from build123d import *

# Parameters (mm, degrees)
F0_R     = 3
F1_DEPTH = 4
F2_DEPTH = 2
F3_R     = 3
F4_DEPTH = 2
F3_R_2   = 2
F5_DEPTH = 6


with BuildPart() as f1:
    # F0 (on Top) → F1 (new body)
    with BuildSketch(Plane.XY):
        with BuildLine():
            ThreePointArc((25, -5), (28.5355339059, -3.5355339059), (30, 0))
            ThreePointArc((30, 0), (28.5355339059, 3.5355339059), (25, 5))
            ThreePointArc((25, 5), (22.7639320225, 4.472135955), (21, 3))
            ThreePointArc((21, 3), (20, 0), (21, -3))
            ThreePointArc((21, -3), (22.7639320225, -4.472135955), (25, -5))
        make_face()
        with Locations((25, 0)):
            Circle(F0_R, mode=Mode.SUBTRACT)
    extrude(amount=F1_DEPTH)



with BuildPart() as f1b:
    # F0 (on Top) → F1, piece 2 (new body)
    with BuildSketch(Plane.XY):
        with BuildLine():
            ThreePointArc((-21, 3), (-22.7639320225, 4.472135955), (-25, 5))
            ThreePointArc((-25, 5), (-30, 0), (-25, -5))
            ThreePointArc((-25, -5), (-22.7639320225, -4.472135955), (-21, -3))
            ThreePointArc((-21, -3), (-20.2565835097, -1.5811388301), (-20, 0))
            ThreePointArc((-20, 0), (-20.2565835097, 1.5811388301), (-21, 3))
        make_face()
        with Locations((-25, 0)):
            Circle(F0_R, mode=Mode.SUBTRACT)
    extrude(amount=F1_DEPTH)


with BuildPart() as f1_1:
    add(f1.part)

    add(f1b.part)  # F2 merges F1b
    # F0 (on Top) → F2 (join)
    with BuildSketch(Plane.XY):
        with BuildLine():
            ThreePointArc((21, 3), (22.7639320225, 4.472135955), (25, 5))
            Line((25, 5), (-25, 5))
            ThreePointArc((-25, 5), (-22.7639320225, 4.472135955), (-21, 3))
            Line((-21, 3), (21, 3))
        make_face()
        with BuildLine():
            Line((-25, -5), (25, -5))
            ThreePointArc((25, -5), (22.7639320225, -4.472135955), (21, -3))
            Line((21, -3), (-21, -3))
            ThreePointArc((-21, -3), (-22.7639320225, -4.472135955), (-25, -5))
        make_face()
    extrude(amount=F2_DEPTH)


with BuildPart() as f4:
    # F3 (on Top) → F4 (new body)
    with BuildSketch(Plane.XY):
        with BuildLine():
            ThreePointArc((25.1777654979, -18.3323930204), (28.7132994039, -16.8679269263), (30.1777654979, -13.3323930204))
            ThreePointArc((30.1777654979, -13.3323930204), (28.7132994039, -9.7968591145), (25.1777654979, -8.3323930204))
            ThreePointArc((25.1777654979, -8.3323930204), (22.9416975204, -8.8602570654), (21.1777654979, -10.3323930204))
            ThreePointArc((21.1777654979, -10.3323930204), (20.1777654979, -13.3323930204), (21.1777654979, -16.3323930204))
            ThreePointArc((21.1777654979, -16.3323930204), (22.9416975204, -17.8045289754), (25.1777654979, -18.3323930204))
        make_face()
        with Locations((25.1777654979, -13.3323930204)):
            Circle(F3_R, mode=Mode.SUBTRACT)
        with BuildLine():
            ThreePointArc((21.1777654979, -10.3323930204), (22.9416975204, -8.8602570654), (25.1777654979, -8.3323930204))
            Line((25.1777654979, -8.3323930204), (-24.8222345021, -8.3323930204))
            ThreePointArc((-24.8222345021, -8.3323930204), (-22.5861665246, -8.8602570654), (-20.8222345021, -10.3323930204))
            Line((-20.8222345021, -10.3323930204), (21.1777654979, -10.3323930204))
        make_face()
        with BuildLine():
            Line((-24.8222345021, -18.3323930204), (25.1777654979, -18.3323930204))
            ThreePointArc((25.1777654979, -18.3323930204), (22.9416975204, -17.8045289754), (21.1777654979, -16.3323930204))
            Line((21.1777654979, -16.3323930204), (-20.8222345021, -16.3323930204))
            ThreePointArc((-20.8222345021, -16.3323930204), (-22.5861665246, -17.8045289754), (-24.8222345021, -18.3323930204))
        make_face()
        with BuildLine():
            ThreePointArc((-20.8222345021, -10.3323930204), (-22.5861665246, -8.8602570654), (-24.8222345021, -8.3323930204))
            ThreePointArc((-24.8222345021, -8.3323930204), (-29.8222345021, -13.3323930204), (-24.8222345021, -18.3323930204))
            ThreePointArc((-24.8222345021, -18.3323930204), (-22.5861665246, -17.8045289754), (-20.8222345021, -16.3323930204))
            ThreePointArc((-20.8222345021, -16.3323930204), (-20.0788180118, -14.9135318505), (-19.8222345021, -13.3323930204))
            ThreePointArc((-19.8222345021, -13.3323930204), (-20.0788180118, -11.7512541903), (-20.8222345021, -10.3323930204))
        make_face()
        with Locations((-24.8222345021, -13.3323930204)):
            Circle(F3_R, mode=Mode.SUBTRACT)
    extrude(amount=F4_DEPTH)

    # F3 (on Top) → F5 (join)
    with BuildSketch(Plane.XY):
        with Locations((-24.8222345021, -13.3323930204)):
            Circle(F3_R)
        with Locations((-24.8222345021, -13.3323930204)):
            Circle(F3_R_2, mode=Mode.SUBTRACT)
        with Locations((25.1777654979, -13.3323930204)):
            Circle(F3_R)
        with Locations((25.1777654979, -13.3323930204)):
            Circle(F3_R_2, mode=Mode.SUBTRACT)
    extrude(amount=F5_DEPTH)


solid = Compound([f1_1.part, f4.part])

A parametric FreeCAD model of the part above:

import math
import FreeCAD as App
import Part
import Sketcher

V = App.Vector
Q = App.Units.Quantity

doc = App.newDocument("Part")
body = doc.addObject("PartDesign::Body", "Body")

# Sketch on XY plane
sketch1 = doc.addObject("Sketcher::SketchObject", "Sketch")
body.addObject(sketch1)
sketch1.AttachmentSupport = (doc.XY_Plane, [""])
sketch1.MapMode = "FlatFace"
sketch1.addGeometry(Part.ArcOfCircle(Part.Circle(V(25, 0, 0), V(0, 0, 1), 5), math.radians(-90), math.radians(0)), False)
sketch1.addGeometry(Part.ArcOfCircle(Part.Circle(V(25, 0, 0), V(0, 0, 1), 5), math.radians(0), math.radians(90)), False)
sketch1.addGeometry(Part.ArcOfCircle(Part.Circle(V(25, 0, 0), V(0, 0, 1), 5), math.radians(90), math.radians(217)), False)
sketch1.addGeometry(Part.ArcOfCircle(Part.Circle(V(25, 0, 0), V(0, 0, 1), 5), math.radians(-143), math.radians(-90)), False)
sketch1.addGeometry(Part.Circle(V(25, 0, 0), V(0, 0, 1), 3), False)
sketch1.addConstraint(Sketcher.Constraint("Tangent", 0, 2, 1, 1))
sketch1.addConstraint(Sketcher.Constraint("Tangent", 1, 2, 2, 1))
sketch1.addConstraint(Sketcher.Constraint("Tangent", 2, 2, 3, 1))
sketch1.addConstraint(Sketcher.Constraint("Tangent", 3, 2, 0, 1))
sketch1.addConstraint(Sketcher.Constraint("Coincident", 4, 3, 0, 3))
sketch1.addConstraint(Sketcher.Constraint("Equal", 0, 1))
sketch1.addConstraint(Sketcher.Constraint("Symmetric", 1, 2, 3, 2, -1))
sketch1.addConstraint(Sketcher.Constraint("PointOnObject", 0, 2, -1))
sketch1.addConstraint(Sketcher.Constraint("Vertical", 4, 3, 1, 2))
sketch1.addConstraint(Sketcher.Constraint("Diameter", 4, Q("6 mm")))
sketch1.addConstraint(Sketcher.Constraint("Radius", 0, Q("5 mm")))
sketch1.addConstraint(Sketcher.Constraint("DistanceX", -1, 1, 0, 3, Q("25 mm")))
sketch1.addConstraint(Sketcher.Constraint("DistanceX", -1, 1, 2, 2, Q("21 mm")))
pad1 = doc.addObject("PartDesign::Pad", "Pad")
body.addObject(pad1)
pad1.Profile = sketch1
pad1.Length = 4
body2 = doc.addObject("PartDesign::Body", "Body001")

# Sketch on XY plane
sketch2 = doc.addObject("Sketcher::SketchObject", "Sketch001")
body2.addObject(sketch2)
sketch2.AttachmentSupport = (doc.getObject("XY_Plane001"), [""])
sketch2.MapMode = "FlatFace"
sketch2.addGeometry(Part.ArcOfCircle(Part.Circle(V(-25, 0, 0), V(0, 0, 1), 5), math.radians(37), math.radians(323)), False)
sketch2.addGeometry(Part.ArcOfCircle(Part.Circle(V(-25, 0, 0), V(0, 0, 1), 5), math.radians(-37), math.radians(0)), False)
sketch2.addGeometry(Part.ArcOfCircle(Part.Circle(V(-25, 0, 0), V(0, 0, 1), 5), math.radians(0), math.radians(37)), False)
sketch2.addGeometry(Part.Circle(V(-25, 0, 0), V(0, 0, 1), 3), False)
sketch2.addConstraint(Sketcher.Constraint("Tangent", 0, 2, 1, 1))
sketch2.addConstraint(Sketcher.Constraint("Tangent", 1, 2, 2, 1))
sketch2.addConstraint(Sketcher.Constraint("Tangent", 2, 2, 0, 1))
sketch2.addConstraint(Sketcher.Constraint("Coincident", 3, 3, 0, 3))
sketch2.addConstraint(Sketcher.Constraint("Symmetric", 0, 2, 2, 2, -1))
sketch2.addConstraint(Sketcher.Constraint("PointOnObject", 1, 2, -1))
sketch2.addConstraint(Sketcher.Constraint("Diameter", 3, Q("6 mm")))
sketch2.addConstraint(Sketcher.Constraint("Radius", 0, Q("5 mm")))
sketch2.addConstraint(Sketcher.Constraint("DistanceX", 0, 3, -1, 1, Q("25 mm")))
sketch2.addConstraint(Sketcher.Constraint("DistanceX", 0, 2, -1, 1, Q("21 mm")))
pad2 = doc.addObject("PartDesign::Pad", "Pad001")
body2.addObject(pad2)
pad2.Profile = sketch2
pad2.Length = 4
body.AllowCompound = True
doc.recompute()

boolean = doc.addObject("PartDesign::Boolean", "Boolean")
body.addObject(boolean)
boolean.Type = "Fuse"
boolean.addObjects([body2])

# Sketch on XY plane
sketch3 = doc.addObject("Sketcher::SketchObject", "Sketch002")
body.addObject(sketch3)
sketch3.AttachmentSupport = (doc.XY_Plane, [""])
sketch3.MapMode = "FlatFace"
sketch3.addGeometry(Part.ArcOfCircle(Part.Circle(V(25, 0, 0), V(0, 0, 1), 5), math.radians(90), math.radians(143)), False)
sketch3.addGeometry(Part.LineSegment(V(25, 5, 0), V(-25, 5, 0)), False)
sketch3.addGeometry(Part.ArcOfCircle(Part.Circle(V(-25, 0, 0), V(0, 0, 1), 5), math.radians(37), math.radians(90)), False)
sketch3.addGeometry(Part.LineSegment(V(-21, 3, 0), V(21, 3, 0)), False)
sketch3.addGeometry(Part.LineSegment(V(-25, -5, 0), V(25, -5, 0)), False)
sketch3.addGeometry(Part.ArcOfCircle(Part.Circle(V(25, 0, 0), V(0, 0, 1), 5), math.radians(-143), math.radians(-90)), False)
sketch3.addGeometry(Part.LineSegment(V(21, -3, 0), V(-21, -3, 0)), False)
sketch3.addGeometry(Part.ArcOfCircle(Part.Circle(V(-25, 0, 0), V(0, 0, 1), 5), math.radians(-90), math.radians(-37)), False)
sketch3.addConstraint(Sketcher.Constraint("Tangent", 0, 1, 1, 1))
sketch3.addConstraint(Sketcher.Constraint("Tangent", 1, 2, 2, 2))
sketch3.addConstraint(Sketcher.Constraint("Coincident", 2, 1, 3, 1))
sketch3.addConstraint(Sketcher.Constraint("Coincident", 3, 2, 0, 2))
sketch3.addConstraint(Sketcher.Constraint("Tangent", 4, 2, 5, 2))
sketch3.addConstraint(Sketcher.Constraint("Coincident", 5, 1, 6, 1))
sketch3.addConstraint(Sketcher.Constraint("Coincident", 6, 2, 7, 2))
sketch3.addConstraint(Sketcher.Constraint("Tangent", 7, 1, 4, 1))
sketch3.addConstraint(Sketcher.Constraint("Horizontal", 1))
sketch3.addConstraint(Sketcher.Constraint("Horizontal", 3))
sketch3.addConstraint(Sketcher.Constraint("Horizontal", 4))
sketch3.addConstraint(Sketcher.Constraint("Horizontal", 6))
sketch3.addConstraint(Sketcher.Constraint("Coincident", 5, 3, 0, 3))
sketch3.addConstraint(Sketcher.Constraint("Coincident", 7, 3, 2, 3))
sketch3.addConstraint(Sketcher.Constraint("Equal", 0, 2))
sketch3.addConstraint(Sketcher.Constraint("Equal", 2, 5))
sketch3.addConstraint(Sketcher.Constraint("Symmetric", 0, 3, 2, 3, -1, 1))
sketch3.addConstraint(Sketcher.Constraint("Vertical", 3, 2, 5, 1))
sketch3.addConstraint(Sketcher.Constraint("Radius", 0, Q("5 mm")))
sketch3.addConstraint(Sketcher.Constraint("DistanceX", 1, 2, 1, 1, Q("50 mm")))
sketch3.addConstraint(Sketcher.Constraint("DistanceX", 3, 1, 3, 2, Q("42 mm")))
pad3 = doc.addObject("PartDesign::Pad", "Pad002")
body.addObject(pad3)
pad3.Profile = sketch3
pad3.Length = 2
body3 = doc.addObject("PartDesign::Body", "Body002")

# Sketch on XY plane
sketch4 = doc.addObject("Sketcher::SketchObject", "Sketch003")
body3.addObject(sketch4)
sketch4.AttachmentSupport = (doc.getObject("XY_Plane002"), [""])
sketch4.MapMode = "FlatFace"
sketch4.addGeometry(Part.ArcOfCircle(Part.Circle(V(25.2, -13.3, 0), V(0, 0, 1), 5), math.radians(-90), math.radians(0)), False)
sketch4.addGeometry(Part.ArcOfCircle(Part.Circle(V(25.2, -13.3, 0), V(0, 0, 1), 5), math.radians(0), math.radians(90)), False)
sketch4.addGeometry(Part.LineSegment(V(25.2, -8.3, 0), V(-24.8, -8.3, 0)), False)
sketch4.addGeometry(Part.ArcOfCircle(Part.Circle(V(-24.8, -13.3, 0), V(0, 0, 1), 5), math.radians(90), math.radians(270)), False)
sketch4.addGeometry(Part.LineSegment(V(-24.8, -18.3, 0), V(25.2, -18.3, 0)), False)
sketch4.addGeometry(Part.Circle(V(-24.8, -13.3, 0), V(0, 0, 1), 3), False)
sketch4.addGeometry(Part.LineSegment(V(-20.8, -10.3, 0), V(21.2, -10.3, 0)), False)
sketch4.addGeometry(Part.ArcOfCircle(Part.Circle(V(25.2, -13.3, 0), V(0, 0, 1), 5), math.radians(143), math.radians(217)), False)
sketch4.addGeometry(Part.LineSegment(V(21.2, -16.3, 0), V(-20.8, -16.3, 0)), False)
sketch4.addGeometry(Part.ArcOfCircle(Part.Circle(V(-24.8, -13.3, 0), V(0, 0, 1), 5), math.radians(-37), math.radians(0)), False)
sketch4.addGeometry(Part.ArcOfCircle(Part.Circle(V(-24.8, -13.3, 0), V(0, 0, 1), 5), math.radians(0), math.radians(37)), False)
sketch4.addGeometry(Part.Circle(V(25.2, -13.3, 0), V(0, 0, 1), 3), False)
sketch4.addConstraint(Sketcher.Constraint("Tangent", 0, 2, 1, 1))
sketch4.addConstraint(Sketcher.Constraint("Tangent", 1, 2, 2, 1))
sketch4.addConstraint(Sketcher.Constraint("Tangent", 2, 2, 3, 1))
sketch4.addConstraint(Sketcher.Constraint("Tangent", 3, 2, 4, 1))
sketch4.addConstraint(Sketcher.Constraint("Tangent", 4, 2, 0, 1))
sketch4.addConstraint(Sketcher.Constraint("Coincident", 6, 2, 7, 1))
sketch4.addConstraint(Sketcher.Constraint("Coincident", 7, 2, 8, 1))
sketch4.addConstraint(Sketcher.Constraint("Coincident", 8, 2, 9, 1))
sketch4.addConstraint(Sketcher.Constraint("Tangent", 9, 2, 10, 1))
sketch4.addConstraint(Sketcher.Constraint("Coincident", 10, 2, 6, 1))
sketch4.addConstraint(Sketcher.Constraint("Horizontal", 2))
sketch4.addConstraint(Sketcher.Constraint("Horizontal", 4))
sketch4.addConstraint(Sketcher.Constraint("Horizontal", 6))
sketch4.addConstraint(Sketcher.Constraint("Horizontal", 8))
sketch4.addConstraint(Sketcher.Constraint("Coincident", 5, 3, 3, 3))
sketch4.addConstraint(Sketcher.Constraint("Coincident", 7, 3, 0, 3))
sketch4.addConstraint(Sketcher.Constraint("Coincident", 9, 3, 3, 3))
sketch4.addConstraint(Sketcher.Constraint("Coincident", 11, 3, 0, 3))
sketch4.addConstraint(Sketcher.Constraint("Equal", 0, 1))
sketch4.addConstraint(Sketcher.Constraint("Equal", 3, 7))
sketch4.addConstraint(Sketcher.Constraint("Equal", 7, 9))
sketch4.addConstraint(Sketcher.Constraint("Equal", 9, 10))
sketch4.addConstraint(Sketcher.Constraint("Equal", 5, 11))
sketch4.addConstraint(Sketcher.Constraint("Horizontal", 11, 3, 0, 2))
sketch4.addConstraint(Sketcher.Constraint("Horizontal", 0, 2, 9, 2))
sketch4.addConstraint(Sketcher.Constraint("Vertical", 6, 2, 7, 2))
sketch4.addConstraint(Sketcher.Constraint("Diameter", 5, Q("6 mm")))
sketch4.addConstraint(Sketcher.Constraint("Radius", 0, Q("5 mm")))
sketch4.addConstraint(Sketcher.Constraint("DistanceX", 2, 2, 2, 1, Q("50 mm")))
sketch4.addConstraint(Sketcher.Constraint("DistanceX", 6, 1, 6, 2, Q("42 mm")))
sketch4.addConstraint(Sketcher.Constraint("DistanceX", -1, 1, 0, 3, Q("25.177765 mm")))
sketch4.addConstraint(Sketcher.Constraint("DistanceY", 0, 3, -1, 1, Q("13.332393 mm")))
pad4 = doc.addObject("PartDesign::Pad", "Pad003")
body3.addObject(pad4)
pad4.Profile = sketch4
pad4.Length = 2

# Sketch on XY plane
sketch5 = doc.addObject("Sketcher::SketchObject", "Sketch004")
body3.addObject(sketch5)
sketch5.AttachmentSupport = (doc.getObject("XY_Plane002"), [""])
sketch5.MapMode = "FlatFace"
sketch5.addGeometry(Part.Circle(V(-24.8, -13.3, 0), V(0, 0, 1), 3), False)
sketch5.addGeometry(Part.Circle(V(-24.8, -13.3, 0), V(0, 0, 1), 2), False)
sketch5.addGeometry(Part.Circle(V(25.2, -13.3, 0), V(0, 0, 1), 3), False)
sketch5.addGeometry(Part.Circle(V(25.2, -13.3, 0), V(0, 0, 1), 2), False)
sketch5.addConstraint(Sketcher.Constraint("Coincident", 1, 3, 0, 3))
sketch5.addConstraint(Sketcher.Constraint("Coincident", 3, 3, 2, 3))
sketch5.addConstraint(Sketcher.Constraint("Equal", 0, 2))
sketch5.addConstraint(Sketcher.Constraint("Equal", 1, 3))
sketch5.addConstraint(Sketcher.Constraint("Horizontal", 1, 3, 2, 3))
sketch5.addConstraint(Sketcher.Constraint("Diameter", 0, Q("6 mm")))
sketch5.addConstraint(Sketcher.Constraint("Diameter", 1, Q("4 mm")))
sketch5.addConstraint(Sketcher.Constraint("DistanceX", 0, 3, 2, 3, Q("50 mm")))
sketch5.addConstraint(Sketcher.Constraint("DistanceX", 0, 3, -1, 1, Q("24.822235 mm")))
sketch5.addConstraint(Sketcher.Constraint("DistanceY", 0, 3, -1, 1, Q("13.332393 mm")))
pad5 = doc.addObject("PartDesign::Pad", "Pad004")
body3.addObject(pad5)
pad5.Profile = sketch5
pad5.Length = 6

doc.recompute()
